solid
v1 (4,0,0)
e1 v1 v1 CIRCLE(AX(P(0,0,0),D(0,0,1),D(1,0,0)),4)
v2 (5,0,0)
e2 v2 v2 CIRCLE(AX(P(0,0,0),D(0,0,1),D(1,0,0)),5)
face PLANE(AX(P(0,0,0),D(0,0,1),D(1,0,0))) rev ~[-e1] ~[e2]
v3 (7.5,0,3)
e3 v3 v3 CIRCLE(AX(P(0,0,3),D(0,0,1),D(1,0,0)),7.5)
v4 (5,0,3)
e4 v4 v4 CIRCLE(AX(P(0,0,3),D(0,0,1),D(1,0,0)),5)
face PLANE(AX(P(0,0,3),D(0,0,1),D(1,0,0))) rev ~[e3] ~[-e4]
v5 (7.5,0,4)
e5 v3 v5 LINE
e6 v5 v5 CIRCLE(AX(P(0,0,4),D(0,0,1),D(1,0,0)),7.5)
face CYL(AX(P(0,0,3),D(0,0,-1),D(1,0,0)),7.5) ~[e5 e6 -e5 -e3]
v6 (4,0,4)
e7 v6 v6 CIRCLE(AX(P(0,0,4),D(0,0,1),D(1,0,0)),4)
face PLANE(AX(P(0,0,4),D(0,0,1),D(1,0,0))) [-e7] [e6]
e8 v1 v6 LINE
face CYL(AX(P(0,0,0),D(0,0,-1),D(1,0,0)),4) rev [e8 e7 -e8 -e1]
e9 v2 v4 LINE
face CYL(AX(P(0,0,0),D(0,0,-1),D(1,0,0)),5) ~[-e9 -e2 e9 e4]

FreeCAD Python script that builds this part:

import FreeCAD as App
import Part
import Sketcher

V = App.Vector

doc = App.newDocument("Part")
body = doc.addObject("PartDesign::Body", "Body")

sketch1 = body.newObject("Sketcher::SketchObject", "Sketch")
sketch1.AttachmentSupport = (doc.getObject("XY_Plane"), [""])
sketch1.MapMode = "FlatFace"
sketch1.addGeometry([
    Part.Circle(V(0, 0, 0), V(0, 0, 1), 5),
    Part.Circle(V(0, 0, 0), V(0, 0, 1), 4),
], False)
sketch1.addConstraint([
    Sketcher.Constraint("Coincident", 0, 3, -1, 1),
    Sketcher.Constraint("Coincident", 1, 3, -1, 1),
    Sketcher.Constraint("Diameter", 0, 10.0),
    Sketcher.Constraint("Diameter", 1, 8.0),
])
pad1 = body.newObject("PartDesign::Pad", "Pad")
pad1.Profile = sketch1
pad1.Length = 3

sketch2 = body.newObject("Sketcher::SketchObject", "Sketch001")
sketch2.AttachmentSupport = (doc.getObject("XY_Plane"), [""])
sketch2.MapMode = "FlatFace"
sketch2.AttachmentOffset = App.Placement(V(0, 0, 3), App.Rotation())
sketch2.addGeometry([
    Part.Circle(V(0, 0, 0), V(0, 0, 1), 7.5),
    Part.Circle(V(0, 0, 0), V(0, 0, 1), 4),
], False)
sketch2.addConstraint([
    Sketcher.Constraint("Coincident", 0, 3, -1, 1),
    Sketcher.Constraint("Coincident", 1, 3, -1, 1),
    Sketcher.Constraint("Diameter", 0, 15.0),
    Sketcher.Constraint("Diameter", 1, 8.0),
])
pad2 = body.newObject("PartDesign::Pad", "Pad001")
pad2.Profile = sketch2
pad2.Length = 1

doc.recompute()
